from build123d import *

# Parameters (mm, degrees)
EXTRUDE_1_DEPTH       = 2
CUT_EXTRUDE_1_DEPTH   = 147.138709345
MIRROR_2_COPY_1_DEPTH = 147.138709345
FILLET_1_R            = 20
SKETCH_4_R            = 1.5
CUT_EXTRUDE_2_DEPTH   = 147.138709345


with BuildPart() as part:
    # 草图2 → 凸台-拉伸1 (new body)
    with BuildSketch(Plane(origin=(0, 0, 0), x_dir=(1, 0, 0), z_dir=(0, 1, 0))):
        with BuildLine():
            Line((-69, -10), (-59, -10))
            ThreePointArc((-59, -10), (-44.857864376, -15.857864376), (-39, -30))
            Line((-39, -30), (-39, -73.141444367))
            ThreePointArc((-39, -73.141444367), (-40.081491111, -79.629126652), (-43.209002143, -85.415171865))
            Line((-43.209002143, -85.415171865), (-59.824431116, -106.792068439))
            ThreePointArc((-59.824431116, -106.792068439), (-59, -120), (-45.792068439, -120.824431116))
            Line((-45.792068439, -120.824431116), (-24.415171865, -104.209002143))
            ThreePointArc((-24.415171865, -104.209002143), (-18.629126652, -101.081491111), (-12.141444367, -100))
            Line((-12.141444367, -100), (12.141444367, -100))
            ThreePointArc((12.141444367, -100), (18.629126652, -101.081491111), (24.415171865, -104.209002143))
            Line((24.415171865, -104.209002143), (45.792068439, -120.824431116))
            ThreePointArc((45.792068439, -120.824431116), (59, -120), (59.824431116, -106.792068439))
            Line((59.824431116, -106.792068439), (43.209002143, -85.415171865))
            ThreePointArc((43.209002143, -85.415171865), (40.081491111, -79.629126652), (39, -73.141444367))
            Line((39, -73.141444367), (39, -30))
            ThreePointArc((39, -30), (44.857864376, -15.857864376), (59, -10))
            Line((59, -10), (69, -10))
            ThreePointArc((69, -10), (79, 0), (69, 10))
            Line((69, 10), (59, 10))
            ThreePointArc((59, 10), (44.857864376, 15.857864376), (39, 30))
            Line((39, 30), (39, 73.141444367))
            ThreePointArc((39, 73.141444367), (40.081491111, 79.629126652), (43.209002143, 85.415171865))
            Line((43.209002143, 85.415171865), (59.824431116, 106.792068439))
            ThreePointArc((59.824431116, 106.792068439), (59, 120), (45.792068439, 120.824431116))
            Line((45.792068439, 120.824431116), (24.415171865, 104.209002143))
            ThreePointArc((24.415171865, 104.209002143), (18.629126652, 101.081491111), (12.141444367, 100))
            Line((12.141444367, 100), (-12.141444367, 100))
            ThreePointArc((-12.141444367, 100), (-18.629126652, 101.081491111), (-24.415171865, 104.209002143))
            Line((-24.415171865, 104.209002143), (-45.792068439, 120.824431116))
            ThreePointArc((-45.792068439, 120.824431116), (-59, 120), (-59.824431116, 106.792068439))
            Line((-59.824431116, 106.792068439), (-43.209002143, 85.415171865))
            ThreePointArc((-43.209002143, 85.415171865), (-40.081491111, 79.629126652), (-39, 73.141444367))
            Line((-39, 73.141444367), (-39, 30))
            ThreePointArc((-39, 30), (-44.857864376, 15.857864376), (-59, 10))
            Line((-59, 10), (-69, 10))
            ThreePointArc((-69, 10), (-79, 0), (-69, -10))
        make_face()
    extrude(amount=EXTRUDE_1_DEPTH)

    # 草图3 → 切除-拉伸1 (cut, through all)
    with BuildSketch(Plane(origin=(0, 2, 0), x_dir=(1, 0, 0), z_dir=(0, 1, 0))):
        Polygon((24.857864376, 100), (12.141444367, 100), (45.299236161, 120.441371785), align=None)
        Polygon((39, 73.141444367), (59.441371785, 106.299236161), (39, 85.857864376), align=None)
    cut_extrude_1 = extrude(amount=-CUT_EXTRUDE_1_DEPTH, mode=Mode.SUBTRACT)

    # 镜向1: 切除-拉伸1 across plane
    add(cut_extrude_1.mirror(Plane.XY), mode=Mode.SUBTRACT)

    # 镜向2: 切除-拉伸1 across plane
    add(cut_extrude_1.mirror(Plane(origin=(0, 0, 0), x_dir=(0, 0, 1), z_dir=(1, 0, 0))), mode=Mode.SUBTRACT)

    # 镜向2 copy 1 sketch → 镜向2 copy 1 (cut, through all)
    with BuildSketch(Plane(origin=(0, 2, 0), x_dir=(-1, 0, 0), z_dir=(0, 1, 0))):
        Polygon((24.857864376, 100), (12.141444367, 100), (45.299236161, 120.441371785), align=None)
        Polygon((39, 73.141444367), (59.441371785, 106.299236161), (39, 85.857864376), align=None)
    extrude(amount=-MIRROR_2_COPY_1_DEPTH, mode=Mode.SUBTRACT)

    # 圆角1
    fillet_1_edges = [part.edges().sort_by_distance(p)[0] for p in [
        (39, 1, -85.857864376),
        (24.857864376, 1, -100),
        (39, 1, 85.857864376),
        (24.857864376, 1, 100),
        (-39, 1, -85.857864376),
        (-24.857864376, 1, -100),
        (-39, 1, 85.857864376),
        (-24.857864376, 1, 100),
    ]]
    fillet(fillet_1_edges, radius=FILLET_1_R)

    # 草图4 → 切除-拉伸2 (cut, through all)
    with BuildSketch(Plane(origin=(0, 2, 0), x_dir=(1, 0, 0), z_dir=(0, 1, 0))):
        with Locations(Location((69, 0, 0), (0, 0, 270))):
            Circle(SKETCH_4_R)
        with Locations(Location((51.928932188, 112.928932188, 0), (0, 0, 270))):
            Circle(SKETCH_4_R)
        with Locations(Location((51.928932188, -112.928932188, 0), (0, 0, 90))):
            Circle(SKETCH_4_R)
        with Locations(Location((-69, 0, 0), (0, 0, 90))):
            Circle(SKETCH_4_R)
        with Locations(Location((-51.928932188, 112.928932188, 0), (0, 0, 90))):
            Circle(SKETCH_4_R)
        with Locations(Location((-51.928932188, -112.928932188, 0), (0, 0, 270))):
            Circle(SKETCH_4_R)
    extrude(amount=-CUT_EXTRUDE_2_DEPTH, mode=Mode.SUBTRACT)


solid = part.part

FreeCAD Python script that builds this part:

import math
import FreeCAD as App
import Part
import Sketcher

V = App.Vector
Q = App.Units.Quantity


def edges_at(feature, points):
    """Names of the edges that pass closest to the given points."""
    edges = feature.Shape.Edges
    near = lambda p: min(range(len(edges)), key=lambda i: edges[i].distToShape(Part.Vertex(*p))[0])
    return sorted({f"Edge{near(p) + 1}" for p in points})


def add_polygon(sketch, points):
    """Adds a closed chain of lines whose ends are joined by coincident constraints."""
    first, n = sketch.GeometryCount, len(points)
    for a, b in zip(points, points[1:] + points[:1]):
        sketch.addGeometry(Part.LineSegment(App.Vector(*a, 0), App.Vector(*b, 0)), False)
    for i in range(n):
        sketch.addConstraint(Sketcher.Constraint("Coincident", first + i, 2, first + (i + 1) % n, 1))

doc = App.newDocument("Part")
body = doc.addObject("PartDesign::Body", "Body")

sketch1 = body.newObject("Sketcher::SketchObject", "Sketch")
sketch1.AttachmentSupport = (doc.getObject("XZ_Plane"), [""])
sketch1.MapMode = "FlatFace"
sketch1.addGeometry(Part.LineSegment(V(-69, 10, 0), V(-59, 10, 0)), False)
sketch1.addGeometry(Part.ArcOfCircle(Part.Circle(V(-59, 30, 0), V(0, 0, 1), 20), math.radians(-90), math.radians(0)), False)
sketch1.addGeometry(Part.LineSegment(V(-39, 30, 0), V(-39, 73, 0)), False)
sketch1.addGeometry(Part.ArcOfCircle(Part.Circle(V(-59, 73, 0), V(0, 0, 1), 20), math.radians(0), math.radians(38)), False)
sketch1.addGeometry(Part.LineSegment(V(-43, 85, 0), V(-60, 107, 0)), False)
sketch1.addGeometry(Part.ArcOfCircle(Part.Circle(V(-52, 113, 0), V(0, 0, 1), 10), math.radians(52), math.radians(218)), False)
sketch1.addGeometry(Part.LineSegment(V(-46, 121, 0), V(-24, 104, 0)), False)
sketch1.addGeometry(Part.ArcOfCircle(Part.Circle(V(-12, 120, 0), V(0, 0, 1), 20), math.radians(-128), math.radians(-90)), False)
sketch1.addGeometry(Part.LineSegment(V(-12, 100, 0), V(12, 100, 0)), False)
sketch1.addGeometry(Part.ArcOfCircle(Part.Circle(V(12, 120, 0), V(0, 0, 1), 20), math.radians(-90), math.radians(-52)), False)
sketch1.addGeometry(Part.LineSegment(V(24, 104, 0), V(46, 121, 0)), False)
sketch1.addGeometry(Part.ArcOfCircle(Part.Circle(V(52, 113, 0), V(0, 0, 1), 10), math.radians(-38), math.radians(128)), False)
sketch1.addGeometry(Part.LineSegment(V(60, 107, 0), V(43, 85, 0)), False)
sketch1.addGeometry(Part.ArcOfCircle(Part.Circle(V(59, 73, 0), V(0, 0, 1), 20), math.radians(142), math.radians(180)), False)
sketch1.addGeometry(Part.LineSegment(V(39, 73, 0), V(39, 30, 0)), False)
sketch1.addGeometry(Part.ArcOfCircle(Part.Circle(V(59, 30, 0), V(0, 0, 1), 20), math.radians(180), math.radians(270)), False)
sketch1.addGeometry(Part.LineSegment(V(59, 10, 0), V(69, 10, 0)), False)
sketch1.addGeometry(Part.ArcOfCircle(Part.Circle(V(69, 0, 0), V(0, 0, 1), 10), math.radians(-90), math.radians(90)), False)
sketch1.addGeometry(Part.LineSegment(V(69, -10, 0), V(59, -10, 0)), False)
sketch1.addGeometry(Part.ArcOfCircle(Part.Circle(V(59, -30, 0), V(0, 0, 1), 20), math.radians(90), math.radians(180)), False)
sketch1.addGeometry(Part.LineSegment(V(39, -30, 0), V(39, -73, 0)), False)
sketch1.addGeometry(Part.ArcOfCircle(Part.Circle(V(59, -73, 0), V(0, 0, 1), 20), math.radians(180), math.radians(218)), False)
sketch1.addGeometry(Part.LineSegment(V(43, -85, 0), V(60, -107, 0)), False)
sketch1.addGeometry(Part.ArcOfCircle(Part.Circle(V(52, -113, 0), V(0, 0, 1), 10), math.radians(-128), math.radians(38)), False)
sketch1.addGeometry(Part.LineSegment(V(46, -121, 0), V(24, -104, 0)), False)
sketch1.addGeometry(Part.ArcOfCircle(Part.Circle(V(12, -120, 0), V(0, 0, 1), 20), math.radians(52), math.radians(90)), False)
sketch1.addGeometry(Part.LineSegment(V(12, -100, 0), V(-12, -100, 0)), False)
sketch1.addGeometry(Part.ArcOfCircle(Part.Circle(V(-12, -120, 0), V(0, 0, 1), 20), math.radians(90), math.radians(128)), False)
sketch1.addGeometry(Part.LineSegment(V(-24, -104, 0), V(-46, -121, 0)), False)
sketch1.addGeometry(Part.ArcOfCircle(Part.Circle(V(-52, -113, 0), V(0, 0, 1), 10), math.radians(142), math.radians(308)), False)
sketch1.addGeometry(Part.LineSegment(V(-60, -107, 0), V(-43, -85, 0)), False)
sketch1.addGeometry(Part.ArcOfCircle(Part.Circle(V(-59, -73, 0), V(0, 0, 1), 20), math.radians(-38), math.radians(0)), False)
sketch1.addGeometry(Part.LineSegment(V(-39, -73, 0), V(-39, -30, 0)), False)
sketch1.addGeometry(Part.ArcOfCircle(Part.Circle(V(-59, -30, 0), V(0, 0, 1), 20), math.radians(0), math.radians(90)), False)
sketch1.addGeometry(Part.LineSegment(V(-59, -10, 0), V(-69, -10, 0)), False)
sketch1.addGeometry(Part.ArcOfCircle(Part.Circle(V(-69, 0, 0), V(0, 0, 1), 10), math.radians(90), math.radians(270)), False)
sketch1.addConstraint(Sketcher.Constraint("Tangent", 0, 2, 1, 1))
sketch1.addConstraint(Sketcher.Constraint("Tangent", 1, 2, 2, 1))
sketch1.addConstraint(Sketcher.Constraint("Tangent", 2, 2, 3, 1))
sketch1.addConstraint(Sketcher.Constraint("Tangent", 3, 2, 4, 1))
sketch1.addConstraint(Sketcher.Constraint("Tangent", 4, 2, 5, 2))
sketch1.addConstraint(Sketcher.Constraint("Tangent", 5, 1, 6, 1))
sketch1.addConstraint(Sketcher.Constraint("Tangent", 6, 2, 7, 1))
sketch1.addConstraint(Sketcher.Constraint("Tangent", 7, 2, 8, 1))
sketch1.addConstraint(Sketcher.Constraint("Tangent", 8, 2, 9, 1))
sketch1.addConstraint(Sketcher.Constraint("Tangent", 9, 2, 10, 1))
sketch1.addConstraint(Sketcher.Constraint("Tangent", 10, 2, 11, 2))
sketch1.addConstraint(Sketcher.Constraint("Tangent", 11, 1, 12, 1))
sketch1.addConstraint(Sketcher.Constraint("Tangent", 12, 2, 13, 1))
sketch1.addConstraint(Sketcher.Constraint("Tangent", 13, 2, 14, 1))
sketch1.addConstraint(Sketcher.Constraint("Tangent", 14, 2, 15, 1))
sketch1.addConstraint(Sketcher.Constraint("Tangent", 15, 2, 16, 1))
sketch1.addConstraint(Sketcher.Constraint("Tangent", 16, 2, 17, 2))
sketch1.addConstraint(Sketcher.Constraint("Tangent", 17, 1, 18, 1))
sketch1.addConstraint(Sketcher.Constraint("Tangent", 18, 2, 19, 1))
sketch1.addConstraint(Sketcher.Constraint("Tangent", 19, 2, 20, 1))
sketch1.addConstraint(Sketcher.Constraint("Tangent", 20, 2, 21, 1))
sketch1.addConstraint(Sketcher.Constraint("Tangent", 21, 2, 22, 1))
sketch1.addConstraint(Sketcher.Constraint("Tangent", 22, 2, 23, 2))
sketch1.addConstraint(Sketcher.Constraint("Tangent", 23, 1, 24, 1))
sketch1.addConstraint(Sketcher.Constraint("Tangent", 24, 2, 25, 1))
sketch1.addConstraint(Sketcher.Constraint("Tangent", 25, 2, 26, 1))
sketch1.addConstraint(Sketcher.Constraint("Tangent", 26, 2, 27, 1))
sketch1.addConstraint(Sketcher.Constraint("Tangent", 27, 2, 28, 1))
sketch1.addConstraint(Sketcher.Constraint("Tangent", 28, 2, 29, 2))
sketch1.addConstraint(Sketcher.Constraint("Tangent", 29, 1, 30, 1))
sketch1.addConstraint(Sketcher.Constraint("Tangent", 30, 2, 31, 1))
sketch1.addConstraint(Sketcher.Constraint("Tangent", 31, 2, 32, 1))
sketch1.addConstraint(Sketcher.Constraint("Tangent", 32, 2, 33, 1))
sketch1.addConstraint(Sketcher.Constraint("Tangent", 33, 2, 34, 1))
sketch1.addConstraint(Sketcher.Constraint("Tangent", 34, 2, 35, 2))
sketch1.addConstraint(Sketcher.Constraint("Tangent", 35, 1, 0, 1))
sketch1.addConstraint(Sketcher.Constraint("Horizontal", 0))
sketch1.addConstraint(Sketcher.Constraint("Vertical", 2))
sketch1.addConstraint(Sketcher.Constraint("Horizontal", 8))
sketch1.addConstraint(Sketcher.Constraint("Vertical", 14))
sketch1.addConstraint(Sketcher.Constraint("Horizontal", 16))
sketch1.addConstraint(Sketcher.Constraint("Horizontal", 18))
sketch1.addConstraint(Sketcher.Constraint("Vertical", 20))
sketch1.addConstraint(Sketcher.Constraint("Horizontal", 26))
sketch1.addConstraint(Sketcher.Constraint("Vertical", 32))
sketch1.addConstraint(Sketcher.Constraint("Horizontal", 34))
sketch1.addConstraint(Sketcher.Constraint("Equal", 1, 3))
sketch1.addConstraint(Sketcher.Constraint("Equal", 3, 7))
sketch1.addConstraint(Sketcher.Constraint("Equal", 7, 9))
sketch1.addConstraint(Sketcher.Constraint("Equal", 5, 11))
sketch1.addConstraint(Sketcher.Constraint("Equal", 9, 13))
sketch1.addConstraint(Sketcher.Constraint("Equal", 13, 15))
sketch1.addConstraint(Sketcher.Constraint("Equal", 11, 17))
sketch1.addConstraint(Sketcher.Constraint("Equal", 15, 19))
sketch1.addConstraint(Sketcher.Constraint("Equal", 19, 21))
sketch1.addConstraint(Sketcher.Constraint("Equal", 17, 23))
sketch1.addConstraint(Sketcher.Constraint("Equal", 21, 25))
sketch1.addConstraint(Sketcher.Constraint("Equal", 25, 27))
sketch1.addConstraint(Sketcher.Constraint("Equal", 23, 29))
sketch1.addConstraint(Sketcher.Constraint("Equal", 27, 31))
sketch1.addConstraint(Sketcher.Constraint("Equal", 31, 33))
sketch1.addConstraint(Sketcher.Constraint("Equal", 29, 35))
sketch1.addConstraint(Sketcher.Constraint("Symmetric", 1, 3, 19, 3, -1, 1))
sketch1.addConstraint(Sketcher.Constraint("Symmetric", 5, 3, 23, 3, -1, 1))
sketch1.addConstraint(Sketcher.Constraint("Symmetric", 7, 3, 25, 3, -1, 1))
sketch1.addConstraint(Sketcher.Constraint("Symmetric", 11, 3, 29, 3, -1, 1))
sketch1.addConstraint(Sketcher.Constraint("Symmetric", 13, 3, 31, 3, -1, 1))
sketch1.addConstraint(Sketcher.Constraint("Symmetric", 5, 3, 11, 3, -2))
sketch1.addConstraint(Sketcher.Constraint("Symmetric", 3, 3, 13, 3, -2))
sketch1.addConstraint(Sketcher.Constraint("Symmetric", 17, 3, 35, 3, -2))
sketch1.addConstraint(Sketcher.Constraint("Perpendicular", 4, 10))
sketch1.addConstraint(Sketcher.Constraint("Perpendicular", 6, 12))
sketch1.addConstraint(Sketcher.Constraint("Perpendicular", 10, 22))
sketch1.addConstraint(Sketcher.Constraint("Perpendicular", 22, 28))
sketch1.addConstraint(Sketcher.Constraint("Equal", 4, 6))
sketch1.addConstraint(Sketcher.Constraint("Radius", 1, Q("20 mm")))
sketch1.addConstraint(Sketcher.Constraint("Radius", 5, Q("10 mm")))
sketch1.addConstraint(Sketcher.Constraint("DistanceX", 0, 1, 0, 2, Q("10 mm")))
sketch1.addConstraint(Sketcher.Constraint("DistanceX", 1, 3, -1, 1, Q("59 mm")))
sketch1.addConstraint(Sketcher.Constraint("DistanceY", -1, 1, 7, 3, Q("120 mm")))
sketch1.addConstraint(Sketcher.Constraint("DistanceX", 8, 1, 8, 2, Q("24.282889 mm")))
sketch1.addConstraint(Sketcher.Constraint("DistanceX", 4, 2, 5, 3, Q("7.895499 mm")))
pad1 = body.newObject("PartDesign::Pad", "Pad")
pad1.Profile = sketch1
pad1.Length = 2
pad1.Reversed = True

sketch2 = body.newObject("Sketcher::SketchObject", "Sketch001")
sketch2.AttachmentSupport = (doc.getObject("XZ_Plane"), [""])
sketch2.MapMode = "FlatFace"
sketch2.AttachmentOffset = App.Placement(V(0, 0, -2), App.Rotation())
add_polygon(sketch2, [(12, -100), (25, -100), (45, -120)])
add_polygon(sketch2, [(39, -73), (59, -106), (39, -86)])
sketch2.addConstraint(Sketcher.Constraint("Horizontal", 0))
sketch2.addConstraint(Sketcher.Constraint("Vertical", 5))
sketch2.addConstraint(Sketcher.Constraint("Parallel", 1, 4))
sketch2.addConstraint(Sketcher.Constraint("Equal", 0, 5))
sketch2.addConstraint(Sketcher.Constraint("Equal", 2, 3))
sketch2.addConstraint(Sketcher.Constraint("Equal", 1, 4))
sketch2.addConstraint(Sketcher.Constraint("DistanceY", 0, 2, -1, 1, Q("100 mm")))
sketch2.addConstraint(Sketcher.Constraint("DistanceX", -1, 1, 4, 2, Q("39 mm")))
sketch2.addConstraint(Sketcher.Constraint("DistanceX", 0, 1, 0, 2, Q("12.71642 mm")))
sketch2.addConstraint(Sketcher.Constraint("Distance", 2, Q("38.952392 mm")))
sketch2.addConstraint(Sketcher.Constraint("DistanceX", -1, 1, 0, 2, Q("24.857864 mm")))
sketch2.addConstraint(Sketcher.Constraint("DistanceY", 3, 2, -1, 1, Q("106.299236 mm")))
pocket1 = body.newObject("PartDesign::Pocket", "Pocket")
pocket1.Profile = sketch2
pocket1.Type = "ThroughAll"
pocket1.Reversed = True
doc.recompute()

mirrored = body.newObject("PartDesign::Mirrored", "Mirrored")
mirrored.Originals = [pocket1]
mirrored.MirrorPlane = (doc.getObject("XY_Plane"), [""])
body.Tip = mirrored
doc.recompute()

mirrored2 = body.newObject("PartDesign::Mirrored", "Mirrored001")
mirrored2.Originals = [pocket1]
mirrored2.MirrorPlane = (doc.getObject("YZ_Plane"), [""])
body.Tip = mirrored2

sketch3 = body.newObject("Sketcher::SketchObject", "Sketch002")
sketch3.AttachmentSupport = (doc.getObject("XZ_Plane"), [""])
sketch3.MapMode = "FlatFace"
sketch3.AttachmentOffset = App.Placement(V(0, 0, -2), App.Rotation())
add_polygon(sketch3, [(-12, 100), (-25, 100), (-45, 120)])
add_polygon(sketch3, [(-39, 73), (-59, 106), (-39, 86)])
sketch3.addConstraint(Sketcher.Constraint("Horizontal", 0))
sketch3.addConstraint(Sketcher.Constraint("Vertical", 5))
sketch3.addConstraint(Sketcher.Constraint("Parallel", 1, 4))
sketch3.addConstraint(Sketcher.Constraint("Equal", 0, 5))
sketch3.addConstraint(Sketcher.Constraint("Equal", 2, 3))
sketch3.addConstraint(Sketcher.Constraint("Equal", 1, 4))
sketch3.addConstraint(Sketcher.Constraint("DistanceY", -1, 1, 0, 2, Q("100 mm")))
sketch3.addConstraint(Sketcher.Constraint("DistanceX", 4, 2, -1, 1, Q("39 mm")))
sketch3.addConstraint(Sketcher.Constraint("DistanceX", 0, 2, 0, 1, Q("12.71642 mm")))
sketch3.addConstraint(Sketcher.Constraint("Distance", 2, Q("38.952392 mm")))
sketch3.addConstraint(Sketcher.Constraint("DistanceX", 0, 2, -1, 1, Q("24.857864 mm")))
sketch3.addConstraint(Sketcher.Constraint("DistanceY", -1, 1, 3, 2, Q("106.299236 mm")))
pocket2 = body.newObject("PartDesign::Pocket", "Pocket001")
pocket2.Profile = sketch3
pocket2.Type = "ThroughAll"
pocket2.Reversed = True
doc.recompute()

fillet = body.newObject("PartDesign::Fillet", "Fillet")
fillet.Base = (pocket2, edges_at(pocket2, [
    (39, 1, -85.858),
    (24.858, 1, -100),
    (39, 1, 85.858),
    (24.858, 1, 100),
    (-39, 1, -85.858),
    (-24.858, 1, -100),
    (-39, 1, 85.858),
    (-24.858, 1, 100),
]))
fillet.Radius = 20

sketch4 = body.newObject("Sketcher::SketchObject", "Sketch003")
sketch4.AttachmentSupport = (doc.getObject("XZ_Plane"), [""])
sketch4.MapMode = "FlatFace"
sketch4.AttachmentOffset = App.Placement(V(0, 0, -2), App.Rotation())
sketch4.addGeometry(Part.Circle(V(69, 0, 0), V(0, 0, 1), 1.5), False)
sketch4.addGeometry(Part.Circle(V(51.9, -112.9, 0), V(0, 0, 1), 1.5), False)
sketch4.addGeometry(Part.Circle(V(51.9, 112.9, 0), V(0, 0, 1), 1.5), False)
sketch4.addGeometry(Part.Circle(V(-69, 0, 0), V(0, 0, 1), 1.5), False)
sketch4.addGeometry(Part.Circle(V(-51.9, -112.9, 0), V(0, 0, 1), 1.5), False)
sketch4.addGeometry(Part.Circle(V(-51.9, 112.9, 0), V(0, 0, 1), 1.5), False)
sketch4.addConstraint(Sketcher.Constraint("Equal", 0, 1))
sketch4.addConstraint(Sketcher.Constraint("Equal", 1, 2))
sketch4.addConstraint(Sketcher.Constraint("Equal", 2, 3))
sketch4.addConstraint(Sketcher.Constraint("Equal", 3, 4))
sketch4.addConstraint(Sketcher.Constraint("Equal", 4, 5))
sketch4.addConstraint(Sketcher.Constraint("Symmetric", 0, 3, 3, 3, -1, 1))
sketch4.addConstraint(Sketcher.Constraint("Symmetric", 2, 3, 4, 3, -1, 1))
sketch4.addConstraint(Sketcher.Constraint("Symmetric", 1, 3, 5, 3, -1, 1))
sketch4.addConstraint(Sketcher.Constraint("Symmetric", 1, 3, 4, 3, -2))
sketch4.addConstraint(Sketcher.Constraint("PointOnObject", 0, 3, -1))
sketch4.addConstraint(Sketcher.Constraint("Diameter", 0, Q("3 mm")))
sketch4.addConstraint(Sketcher.Constraint("DistanceX", -1, 1, 0, 3, Q("69 mm")))
sketch4.addConstraint(Sketcher.Constraint("DistanceX", -1, 1, 1, 3, Q("51.928932 mm")))
sketch4.addConstraint(Sketcher.Constraint("DistanceY", 1, 3, -1, 1, Q("112.928932 mm")))
pocket3 = body.newObject("PartDesign::Pocket", "Pocket002")
pocket3.Profile = sketch4
pocket3.Type = "ThroughAll"
pocket3.Reversed = True

doc.recompute()
